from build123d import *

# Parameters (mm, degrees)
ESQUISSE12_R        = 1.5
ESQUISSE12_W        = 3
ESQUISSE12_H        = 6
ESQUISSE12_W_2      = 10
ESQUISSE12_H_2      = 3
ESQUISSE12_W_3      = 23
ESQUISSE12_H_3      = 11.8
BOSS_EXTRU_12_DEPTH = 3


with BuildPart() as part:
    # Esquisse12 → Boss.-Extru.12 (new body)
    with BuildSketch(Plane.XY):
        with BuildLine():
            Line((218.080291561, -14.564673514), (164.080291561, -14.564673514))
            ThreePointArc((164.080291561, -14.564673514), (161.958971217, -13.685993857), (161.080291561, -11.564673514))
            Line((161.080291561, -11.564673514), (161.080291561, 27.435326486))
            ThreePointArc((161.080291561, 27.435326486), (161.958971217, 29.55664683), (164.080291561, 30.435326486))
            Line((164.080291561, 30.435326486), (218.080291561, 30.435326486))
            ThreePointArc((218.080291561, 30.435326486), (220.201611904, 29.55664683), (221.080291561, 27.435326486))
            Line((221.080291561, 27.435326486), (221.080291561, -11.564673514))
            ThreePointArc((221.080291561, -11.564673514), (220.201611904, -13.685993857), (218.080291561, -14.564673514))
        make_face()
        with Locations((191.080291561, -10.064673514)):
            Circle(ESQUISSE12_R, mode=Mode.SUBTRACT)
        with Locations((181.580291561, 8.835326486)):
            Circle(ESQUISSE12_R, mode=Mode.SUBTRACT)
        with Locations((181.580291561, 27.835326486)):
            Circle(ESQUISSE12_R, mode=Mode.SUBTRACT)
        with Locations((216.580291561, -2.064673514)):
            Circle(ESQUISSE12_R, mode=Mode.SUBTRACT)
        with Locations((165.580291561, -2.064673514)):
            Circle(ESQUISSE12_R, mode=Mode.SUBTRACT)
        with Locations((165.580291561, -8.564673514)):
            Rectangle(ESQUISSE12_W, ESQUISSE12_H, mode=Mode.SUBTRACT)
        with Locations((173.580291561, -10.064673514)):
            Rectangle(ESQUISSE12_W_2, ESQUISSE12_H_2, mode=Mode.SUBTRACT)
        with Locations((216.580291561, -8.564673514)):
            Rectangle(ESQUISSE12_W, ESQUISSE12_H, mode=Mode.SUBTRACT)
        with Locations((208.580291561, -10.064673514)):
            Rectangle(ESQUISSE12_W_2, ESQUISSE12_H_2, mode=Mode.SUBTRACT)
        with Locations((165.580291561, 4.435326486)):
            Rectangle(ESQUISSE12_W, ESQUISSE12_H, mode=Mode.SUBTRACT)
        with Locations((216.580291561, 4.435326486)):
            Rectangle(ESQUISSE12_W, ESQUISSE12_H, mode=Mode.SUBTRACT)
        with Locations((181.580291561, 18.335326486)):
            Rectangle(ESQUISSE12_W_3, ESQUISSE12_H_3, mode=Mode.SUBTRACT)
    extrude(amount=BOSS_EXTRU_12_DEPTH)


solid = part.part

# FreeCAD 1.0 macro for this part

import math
import FreeCAD as App
import Part
import Sketcher

V = App.Vector
Q = App.Units.Quantity

doc = App.newDocument("Part")
body = doc.addObject("PartDesign::Body", "Body")

# Sketch on XY plane
sketch1 = body.newObject("Sketcher::SketchObject", "Sketch")
sketch1.AttachmentSupport = (doc.getObject("XY_Plane"), [""])
sketch1.MapMode = "FlatFace"
sketch1.addGeometry([
    Part.LineSegment(V(164.080292, -14.564674, 0), V(218.080292, -14.564674, 0)),  # 0
    Part.ArcOfCircle(Part.Circle(V(218.080292, -11.564674, 0), V(0, 0, 1), 3), math.radians(-90), math.radians(0)),  # 1
    Part.LineSegment(V(221.080292, -11.564674, 0), V(221.080292, 27.435326, 0)),  # 2
    Part.ArcOfCircle(Part.Circle(V(218.080292, 27.435326, 0), V(0, 0, 1), 3), math.radians(0), math.radians(90)),  # 3
    Part.LineSegment(V(218.080292, 30.435326, 0), V(164.080292, 30.435326, 0)),  # 4
    Part.ArcOfCircle(Part.Circle(V(164.080292, 27.435326, 0), V(0, 0, 1), 3), math.radians(90), math.radians(180)),  # 5
    Part.LineSegment(V(161.080292, 27.435326, 0), V(161.080292, -11.564674, 0)),  # 6
    Part.ArcOfCircle(Part.Circle(V(164.080292, -11.564674, 0), V(0, 0, 1), 3), math.radians(180), math.radians(270)),  # 7
    Part.LineSegment(V(215.080292, -11.564674, 0), V(215.080292, -5.564674, 0)),  # 8
    Part.LineSegment(V(215.080292, -5.564674, 0), V(218.080292, -5.564674, 0)),  # 9
    Part.LineSegment(V(218.080292, -5.564674, 0), V(218.080292, -11.564674, 0)),  # 10
    Part.LineSegment(V(218.080292, -11.564674, 0), V(215.080292, -11.564674, 0)),  # 11
    Part.LineSegment(V(203.580292, -11.564674, 0), V(203.580292, -8.564674, 0)),  # 12
    Part.LineSegment(V(203.580292, -8.564674, 0), V(213.580292, -8.564674, 0)),  # 13
    Part.LineSegment(V(213.580292, -8.564674, 0), V(213.580292, -11.564674, 0)),  # 14
    Part.LineSegment(V(213.580292, -11.564674, 0), V(203.580292, -11.564674, 0)),  # 15
    Part.Circle(V(216.580292, -2.064674, 0), V(0, 0, 1), 1.5),  # 16
    Part.LineSegment(V(215.080292, 1.435326, 0), V(215.080292, 7.435326, 0)),  # 17
    Part.LineSegment(V(215.080292, 7.435326, 0), V(218.080292, 7.435326, 0)),  # 18
    Part.LineSegment(V(218.080292, 7.435326, 0), V(218.080292, 1.435326, 0)),  # 19
    Part.LineSegment(V(218.080292, 1.435326, 0), V(215.080292, 1.435326, 0)),  # 20
    Part.Circle(V(191.080292, -10.064674, 0), V(0, 0, 1), 1.5),  # 21
    Part.LineSegment(V(168.580292, -11.564674, 0), V(168.580292, -8.564674, 0)),  # 22
    Part.LineSegment(V(168.580292, -8.564674, 0), V(178.580292, -8.564674, 0)),  # 23
    Part.LineSegment(V(178.580292, -8.564674, 0), V(178.580292, -11.564674, 0)),  # 24
    Part.LineSegment(V(178.580292, -11.564674, 0), V(168.580292, -11.564674, 0)),  # 25
    Part.LineSegment(V(164.080292, -11.564674, 0), V(164.080292, -5.564674, 0)),  # 26
    Part.LineSegment(V(164.080292, -5.564674, 0), V(167.080292, -5.564674, 0)),  # 27
    Part.LineSegment(V(167.080292, -5.564674, 0), V(167.080292, -11.564674, 0)),  # 28
    Part.LineSegment(V(167.080292, -11.564674, 0), V(164.080292, -11.564674, 0)),  # 29
    Part.Circle(V(165.580292, -2.064674, 0), V(0, 0, 1), 1.5),  # 30
    Part.Circle(V(181.580292, 8.835326, 0), V(0, 0, 1), 1.5),  # 31
    Part.LineSegment(V(164.080292, 1.435326, 0), V(164.080292, 7.435326, 0)),  # 32
    Part.LineSegment(V(164.080292, 7.435326, 0), V(167.080292, 7.435326, 0)),  # 33
    Part.LineSegment(V(167.080292, 7.435326, 0), V(167.080292, 1.435326, 0)),  # 34
    Part.LineSegment(V(167.080292, 1.435326, 0), V(164.080292, 1.435326, 0)),  # 35
    Part.LineSegment(V(170.080292, 12.435326, 0), V(170.080292, 24.235326, 0)),  # 36
    Part.LineSegment(V(170.080292, 24.235326, 0), V(193.080292, 24.235326, 0)),  # 37
    Part.LineSegment(V(193.080292, 24.235326, 0), V(193.080292, 12.435326, 0)),  # 38
    Part.LineSegment(V(193.080292, 12.435326, 0), V(170.080292, 12.435326, 0)),  # 39
    Part.Circle(V(181.580292, 27.835326, 0), V(0, 0, 1), 1.5),  # 40
], False)
sketch1.addConstraint([
    Sketcher.Constraint("Tangent", 0, 2, 1, 1),
    Sketcher.Constraint("Tangent", 1, 2, 2, 1),
    Sketcher.Constraint("Tangent", 2, 2, 3, 1),
    Sketcher.Constraint("Tangent", 3, 2, 4, 1),
    Sketcher.Constraint("Tangent", 4, 2, 5, 1),
    Sketcher.Constraint("Tangent", 5, 2, 6, 1),
    Sketcher.Constraint("Tangent", 6, 2, 7, 1),
    Sketcher.Constraint("Tangent", 7, 2, 0, 1),
    Sketcher.Constraint("Coincident", 8, 2, 9, 1),
    Sketcher.Constraint("Coincident", 9, 2, 10, 1),
    Sketcher.Constraint("Coincident", 10, 2, 11, 1),
    Sketcher.Constraint("Coincident", 11, 2, 8, 1),
    Sketcher.Constraint("Coincident", 12, 2, 13, 1),
    Sketcher.Constraint("Coincident", 13, 2, 14, 1),
    Sketcher.Constraint("Coincident", 14, 2, 15, 1),
    Sketcher.Constraint("Coincident", 15, 2, 12, 1),
    Sketcher.Constraint("Coincident", 17, 2, 18, 1),
    Sketcher.Constraint("Coincident", 18, 2, 19, 1),
    Sketcher.Constraint("Coincident", 19, 2, 20, 1),
    Sketcher.Constraint("Coincident", 20, 2, 17, 1),
    Sketcher.Constraint("Coincident", 22, 2, 23, 1),
    Sketcher.Constraint("Coincident", 23, 2, 24, 1),
    Sketcher.Constraint("Coincident", 24, 2, 25, 1),
    Sketcher.Constraint("Coincident", 25, 2, 22, 1),
    Sketcher.Constraint("Coincident", 26, 2, 27, 1),
    Sketcher.Constraint("Coincident", 27, 2, 28, 1),
    Sketcher.Constraint("Coincident", 28, 2, 29, 1),
    Sketcher.Constraint("Coincident", 29, 2, 26, 1),
    Sketcher.Constraint("Coincident", 32, 2, 33, 1),
    Sketcher.Constraint("Coincident", 33, 2, 34, 1),
    Sketcher.Constraint("Coincident", 34, 2, 35, 1),
    Sketcher.Constraint("Coincident", 35, 2, 32, 1),
    Sketcher.Constraint("Coincident", 36, 2, 37, 1),
    Sketcher.Constraint("Coincident", 37, 2, 38, 1),
    Sketcher.Constraint("Coincident", 38, 2, 39, 1),
    Sketcher.Constraint("Coincident", 39, 2, 36, 1),
    Sketcher.Constraint("Horizontal", 0),
    Sketcher.Constraint("Vertical", 2),
    Sketcher.Constraint("Horizontal", 4),
    Sketcher.Constraint("Vertical", 6),
    Sketcher.Constraint("Vertical", 8),
    Sketcher.Constraint("Horizontal", 9),
    Sketcher.Constraint("Vertical", 10),
    Sketcher.Constraint("Horizontal", 11),
    Sketcher.Constraint("Vertical", 12),
    Sketcher.Constraint("Horizontal", 13),
    Sketcher.Constraint("Vertical", 14),
    Sketcher.Constraint("Horizontal", 15),
    Sketcher.Constraint("Vertical", 17),
    Sketcher.Constraint("Horizontal", 18),
    Sketcher.Constraint("Vertical", 19),
    Sketcher.Constraint("Horizontal", 20),
    Sketcher.Constraint("Vertical", 22),
    Sketcher.Constraint("Horizontal", 23),
    Sketcher.Constraint("Vertical", 24),
    Sketcher.Constraint("Horizontal", 25),
    Sketcher.Constraint("Vertical", 26),
    Sketcher.Constraint("Horizontal", 27),
    Sketcher.Constraint("Vertical", 28),
    Sketcher.Constraint("Horizontal", 29),
    Sketcher.Constraint("Vertical", 32),
    Sketcher.Constraint("Horizontal", 33),
    Sketcher.Constraint("Vertical", 34),
    Sketcher.Constraint("Horizontal", 35),
    Sketcher.Constraint("Vertical", 36),
    Sketcher.Constraint("Horizontal", 37),
    Sketcher.Constraint("Vertical", 38),
    Sketcher.Constraint("Horizontal", 39),
    Sketcher.Constraint("Coincident", 10, 2, 1, 3),
    Sketcher.Constraint("Coincident", 29, 2, 7, 3),
    Sketcher.Constraint("Equal", 1, 3),
    Sketcher.Constraint("Equal", 3, 5),
    Sketcher.Constraint("Equal", 5, 7),
    Sketcher.Constraint("Equal", 16, 21),
    Sketcher.Constraint("Equal", 21, 30),
    Sketcher.Constraint("Equal", 30, 31),
    Sketcher.Constraint("Equal", 31, 40),
    Sketcher.Constraint("Horizontal", 16, 3, 30, 3),
    Sketcher.Constraint("Horizontal", 11, 2, 14, 2),
    Sketcher.Constraint("Horizontal", 13, 2, 22, 2),
    Sketcher.Constraint("Horizontal", 15, 2, 24, 2),
    Sketcher.Constraint("Horizontal", 9, 2, 26, 2),
    Sketcher.Constraint("Horizontal", 18, 2, 32, 2),
    Sketcher.Constraint("Horizontal", 20, 2, 34, 2),
    Sketcher.Constraint("Vertical", 31, 3, 40, 3),
    Sketcher.Constraint("Vertical", 11, 2, 17, 2),
    Sketcher.Constraint("Vertical", 10, 2, 18, 2),
    Sketcher.Constraint("Vertical", 29, 2, 32, 2),
    Sketcher.Constraint("Vertical", 28, 2, 33, 2),
    Sketcher.Constraint("Equal", 15, 23),
    Sketcher.Constraint("Equal", 20, 27),
    Sketcher.Constraint("Equal", 35, 12),
    Sketcher.Constraint("Equal", 10, 17),
    Sketcher.Constraint("Diameter", 16, Q("3 mm")),
    Sketcher.Constraint("Radius", 1, Q("3 mm")),
    Sketcher.Constraint("DistanceX", 0, 1, 0, 2, Q("54 mm")),
    Sketcher.Constraint("DistanceX", 9, 1, 9, 2, Q("3 mm")),
    Sketcher.Constraint("DistanceX", 13, 1, 13, 2, Q("10 mm")),
    Sketcher.Constraint("DistanceX", 37, 1, 37, 2, Q("23 mm")),
    Sketcher.Constraint("DistanceY", 2, 1, 2, 2, Q("39 mm")),
    Sketcher.Constraint("DistanceY", 8, 1, 8, 2, Q("6 mm")),
    Sketcher.Constraint("DistanceY", 36, 1, 36, 2, Q("11.8 mm")),
    Sketcher.Constraint("DistanceY", 21, 3, 16, 3, Q("8 mm")),
    Sketcher.Constraint("DistanceX", 21, 3, 1, 3, Q("27 mm")),
    Sketcher.Constraint("DistanceX", 30, 3, 16, 3, Q("51 mm")),
    Sketcher.Constraint("DistanceX", 30, 3, 31, 3, Q("16 mm")),
    Sketcher.Constraint("DistanceY", 31, 3, 40, 3, Q("19 mm")),
    Sketcher.Constraint("DistanceX", 12, 2, 16, 3, Q("13 mm")),
    Sketcher.Constraint("DistanceY", 8, 2, 17, 2, Q("13 mm")),
    Sketcher.Constraint("DistanceX", 30, 3, 22, 2, Q("3 mm")),
    Sketcher.Constraint("DistanceX", 5, 3, 36, 2, Q("6 mm")),
    Sketcher.Constraint("DistanceY", 17, 2, 38, 2, Q("5 mm")),
    Sketcher.Constraint("DistanceX", 16, 3, 1, 3, Q("1.5 mm")),
    Sketcher.Constraint("DistanceY", 1, 3, 16, 3, Q("9.5 mm")),
    Sketcher.Constraint("DistanceY", 30, 3, 31, 3, Q("10.9 mm")),
    Sketcher.Constraint("DistanceX", -1, 1, 1, 3, Q("218.080292 mm")),
    Sketcher.Constraint("DistanceY", 1, 3, -1, 1, Q("11.564674 mm")),
])
pad1 = body.newObject("PartDesign::Pad", "Pad")
pad1.Profile = sketch1
pad1.Length = 3

doc.recompute()
